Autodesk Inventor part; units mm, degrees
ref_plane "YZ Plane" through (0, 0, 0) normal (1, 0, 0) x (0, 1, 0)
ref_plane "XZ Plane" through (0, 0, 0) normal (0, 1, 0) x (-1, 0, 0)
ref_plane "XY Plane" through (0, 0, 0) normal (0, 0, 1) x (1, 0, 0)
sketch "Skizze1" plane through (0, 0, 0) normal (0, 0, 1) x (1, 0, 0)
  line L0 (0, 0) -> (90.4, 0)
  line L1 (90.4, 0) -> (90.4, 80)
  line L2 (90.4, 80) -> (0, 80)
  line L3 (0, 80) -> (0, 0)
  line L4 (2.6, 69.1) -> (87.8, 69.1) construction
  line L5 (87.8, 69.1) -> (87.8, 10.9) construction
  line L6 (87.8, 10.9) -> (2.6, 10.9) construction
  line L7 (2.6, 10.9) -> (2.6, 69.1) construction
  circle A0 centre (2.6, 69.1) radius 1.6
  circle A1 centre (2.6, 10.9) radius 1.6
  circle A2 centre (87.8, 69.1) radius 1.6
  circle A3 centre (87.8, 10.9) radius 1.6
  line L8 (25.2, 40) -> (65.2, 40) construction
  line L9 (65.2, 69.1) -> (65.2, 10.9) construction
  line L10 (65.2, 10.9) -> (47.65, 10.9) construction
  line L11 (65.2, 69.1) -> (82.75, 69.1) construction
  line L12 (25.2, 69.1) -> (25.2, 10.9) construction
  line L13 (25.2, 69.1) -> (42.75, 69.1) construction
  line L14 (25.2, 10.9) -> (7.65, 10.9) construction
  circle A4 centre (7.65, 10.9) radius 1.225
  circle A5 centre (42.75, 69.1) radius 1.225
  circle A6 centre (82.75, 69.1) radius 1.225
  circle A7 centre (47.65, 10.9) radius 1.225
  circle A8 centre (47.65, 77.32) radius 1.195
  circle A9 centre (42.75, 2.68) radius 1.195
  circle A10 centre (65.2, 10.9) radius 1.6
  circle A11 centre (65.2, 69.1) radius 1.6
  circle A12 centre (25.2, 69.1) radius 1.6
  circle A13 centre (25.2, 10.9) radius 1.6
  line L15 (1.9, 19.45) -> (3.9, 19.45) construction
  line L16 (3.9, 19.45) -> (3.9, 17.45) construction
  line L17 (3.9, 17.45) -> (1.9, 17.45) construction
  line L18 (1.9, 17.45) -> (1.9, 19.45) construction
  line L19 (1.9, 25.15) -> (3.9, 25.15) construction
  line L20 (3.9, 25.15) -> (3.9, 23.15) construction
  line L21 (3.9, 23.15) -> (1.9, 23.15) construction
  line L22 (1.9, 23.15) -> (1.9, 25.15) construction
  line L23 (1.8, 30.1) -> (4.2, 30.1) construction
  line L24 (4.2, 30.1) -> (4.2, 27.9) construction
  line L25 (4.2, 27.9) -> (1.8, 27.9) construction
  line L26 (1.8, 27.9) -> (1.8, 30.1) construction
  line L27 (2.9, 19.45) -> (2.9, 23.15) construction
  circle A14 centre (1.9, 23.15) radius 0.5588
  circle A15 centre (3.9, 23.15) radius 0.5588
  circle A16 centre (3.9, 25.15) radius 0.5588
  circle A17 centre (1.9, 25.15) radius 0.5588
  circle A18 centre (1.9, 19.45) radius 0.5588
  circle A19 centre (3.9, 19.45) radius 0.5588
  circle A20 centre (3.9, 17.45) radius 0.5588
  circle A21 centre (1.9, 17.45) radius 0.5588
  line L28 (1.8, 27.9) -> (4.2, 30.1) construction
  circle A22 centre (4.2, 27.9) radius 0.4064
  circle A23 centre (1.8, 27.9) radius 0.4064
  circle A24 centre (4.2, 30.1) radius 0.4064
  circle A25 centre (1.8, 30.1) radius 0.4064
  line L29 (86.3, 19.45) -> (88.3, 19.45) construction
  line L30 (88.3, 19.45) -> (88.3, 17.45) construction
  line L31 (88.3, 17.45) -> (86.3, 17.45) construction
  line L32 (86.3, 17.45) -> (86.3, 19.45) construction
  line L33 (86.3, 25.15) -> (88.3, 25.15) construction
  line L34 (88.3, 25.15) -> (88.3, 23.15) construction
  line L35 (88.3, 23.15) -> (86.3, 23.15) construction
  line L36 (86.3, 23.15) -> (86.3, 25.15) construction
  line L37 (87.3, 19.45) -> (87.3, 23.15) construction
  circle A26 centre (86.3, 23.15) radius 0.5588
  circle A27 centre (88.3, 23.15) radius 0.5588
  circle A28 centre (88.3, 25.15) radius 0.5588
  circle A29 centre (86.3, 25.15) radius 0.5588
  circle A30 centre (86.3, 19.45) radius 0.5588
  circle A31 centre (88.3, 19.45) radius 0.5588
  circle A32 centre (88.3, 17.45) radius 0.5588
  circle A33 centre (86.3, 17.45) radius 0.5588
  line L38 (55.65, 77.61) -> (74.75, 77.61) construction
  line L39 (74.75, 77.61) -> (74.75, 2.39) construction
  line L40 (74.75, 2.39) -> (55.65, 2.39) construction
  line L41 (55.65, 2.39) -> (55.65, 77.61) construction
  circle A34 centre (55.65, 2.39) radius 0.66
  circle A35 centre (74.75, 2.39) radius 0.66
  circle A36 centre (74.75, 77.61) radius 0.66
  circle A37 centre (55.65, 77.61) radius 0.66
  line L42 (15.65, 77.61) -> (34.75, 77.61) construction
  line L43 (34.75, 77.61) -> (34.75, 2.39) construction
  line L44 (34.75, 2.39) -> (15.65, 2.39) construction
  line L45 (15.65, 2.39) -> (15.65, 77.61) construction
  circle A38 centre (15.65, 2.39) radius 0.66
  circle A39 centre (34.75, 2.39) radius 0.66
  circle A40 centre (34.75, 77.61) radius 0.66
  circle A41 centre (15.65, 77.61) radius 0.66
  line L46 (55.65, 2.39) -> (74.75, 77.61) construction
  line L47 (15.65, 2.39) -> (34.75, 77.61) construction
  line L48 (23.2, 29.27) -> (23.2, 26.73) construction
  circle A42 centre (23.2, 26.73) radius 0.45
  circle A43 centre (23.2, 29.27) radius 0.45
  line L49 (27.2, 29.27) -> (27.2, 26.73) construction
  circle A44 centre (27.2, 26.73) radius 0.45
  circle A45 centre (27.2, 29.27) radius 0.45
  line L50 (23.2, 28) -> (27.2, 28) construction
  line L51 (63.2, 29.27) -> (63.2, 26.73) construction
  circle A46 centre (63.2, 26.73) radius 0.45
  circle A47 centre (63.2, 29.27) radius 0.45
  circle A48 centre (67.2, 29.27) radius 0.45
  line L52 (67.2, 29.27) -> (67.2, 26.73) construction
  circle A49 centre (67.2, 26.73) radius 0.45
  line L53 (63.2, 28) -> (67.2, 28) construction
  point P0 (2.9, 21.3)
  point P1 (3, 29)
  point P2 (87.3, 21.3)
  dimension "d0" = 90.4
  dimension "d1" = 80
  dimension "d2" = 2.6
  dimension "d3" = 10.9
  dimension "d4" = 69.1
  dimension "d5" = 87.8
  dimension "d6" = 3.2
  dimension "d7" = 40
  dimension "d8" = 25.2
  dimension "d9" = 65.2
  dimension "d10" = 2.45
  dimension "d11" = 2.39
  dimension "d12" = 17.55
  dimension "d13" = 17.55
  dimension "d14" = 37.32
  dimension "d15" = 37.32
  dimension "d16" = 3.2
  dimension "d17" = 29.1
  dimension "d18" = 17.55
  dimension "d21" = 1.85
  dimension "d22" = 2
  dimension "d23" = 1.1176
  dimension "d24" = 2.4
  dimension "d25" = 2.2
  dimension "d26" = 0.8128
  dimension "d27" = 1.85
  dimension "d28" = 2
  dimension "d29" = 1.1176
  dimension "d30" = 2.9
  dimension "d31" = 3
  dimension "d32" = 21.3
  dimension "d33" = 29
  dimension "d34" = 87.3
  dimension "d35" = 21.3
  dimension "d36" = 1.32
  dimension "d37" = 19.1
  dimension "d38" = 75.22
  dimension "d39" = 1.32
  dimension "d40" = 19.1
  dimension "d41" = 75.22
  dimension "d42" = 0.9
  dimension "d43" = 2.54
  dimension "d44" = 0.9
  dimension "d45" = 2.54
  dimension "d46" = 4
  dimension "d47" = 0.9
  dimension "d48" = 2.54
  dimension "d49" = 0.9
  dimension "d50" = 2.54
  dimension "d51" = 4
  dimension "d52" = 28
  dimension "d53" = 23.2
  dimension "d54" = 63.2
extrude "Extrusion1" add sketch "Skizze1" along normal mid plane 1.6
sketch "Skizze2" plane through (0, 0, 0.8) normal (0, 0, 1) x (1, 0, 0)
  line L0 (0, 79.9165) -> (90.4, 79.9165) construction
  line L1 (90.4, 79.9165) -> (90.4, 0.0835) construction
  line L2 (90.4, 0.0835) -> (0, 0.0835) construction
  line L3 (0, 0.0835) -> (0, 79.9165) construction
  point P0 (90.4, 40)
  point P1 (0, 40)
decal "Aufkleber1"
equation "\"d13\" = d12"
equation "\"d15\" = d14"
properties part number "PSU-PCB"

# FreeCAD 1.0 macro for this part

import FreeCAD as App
import Part
import Sketcher
from FreeCAD import Vector

doc = App.newDocument("Part")
body = doc.addObject("PartDesign::Body", "Body")

sketch1 = body.newObject("Sketcher::SketchObject", "Sketch")
sketch1.AttachmentSupport = (doc.getObject("XY_Plane"), [""])
sketch1.MapMode = "FlatFace"
sketch1.addGeometry([
    Part.LineSegment(Vector(0, 80, 0), Vector(0, 0, 0)),
    Part.LineSegment(Vector(0, 0, 0), Vector(90.4, 0, 0)),
    Part.LineSegment(Vector(90.4, 0, 0), Vector(90.4, 80, 0)),
    Part.LineSegment(Vector(90.4, 80, 0), Vector(0, 80, 0)),
    Part.Circle(Vector(15.65, 2.39, 0), Vector(0, 0, 1), 0.66),
    Part.Circle(Vector(2.6, 10.9, 0), Vector(0, 0, 1), 1.6),
    Part.Circle(Vector(7.65, 10.9, 0), Vector(0, 0, 1), 1.225),
    Part.Circle(Vector(1.9, 17.45, 0), Vector(0, 0, 1), 0.5588),
    Part.Circle(Vector(3.9, 17.45, 0), Vector(0, 0, 1), 0.5588),
    Part.Circle(Vector(1.9, 19.45, 0), Vector(0, 0, 1), 0.5588),
    Part.Circle(Vector(3.9, 19.45, 0), Vector(0, 0, 1), 0.5588),
    Part.Circle(Vector(34.75, 2.39, 0), Vector(0, 0, 1), 0.66),
    Part.Circle(Vector(42.75, 2.68, 0), Vector(0, 0, 1), 1.195),
    Part.Circle(Vector(25.2, 10.9, 0), Vector(0, 0, 1), 1.6),
    Part.Circle(Vector(1.9, 23.15, 0), Vector(0, 0, 1), 0.5588),
    Part.Circle(Vector(3.9, 23.15, 0), Vector(0, 0, 1), 0.5588),
    Part.Circle(Vector(1.9, 25.15, 0), Vector(0, 0, 1), 0.5588),
    Part.Circle(Vector(3.9, 25.15, 0), Vector(0, 0, 1), 0.5588),
    Part.Circle(Vector(1.8, 27.9, 0), Vector(0, 0, 1), 0.4064),
    Part.Circle(Vector(4.2, 27.9, 0), Vector(0, 0, 1), 0.4064),
    Part.Circle(Vector(1.8, 30.1, 0), Vector(0, 0, 1), 0.4064),
    Part.Circle(Vector(4.2, 30.1, 0), Vector(0, 0, 1), 0.4064),
    Part.Circle(Vector(23.2, 26.73, 0), Vector(0, 0, 1), 0.45),
    Part.Circle(Vector(27.2, 26.73, 0), Vector(0, 0, 1), 0.45),
    Part.Circle(Vector(23.2, 29.27, 0), Vector(0, 0, 1), 0.45),
    Part.Circle(Vector(27.2, 29.27, 0), Vector(0, 0, 1), 0.45),
    Part.Circle(Vector(55.65, 2.39, 0), Vector(0, 0, 1), 0.66),
    Part.Circle(Vector(47.65, 10.9, 0), Vector(0, 0, 1), 1.225),
    Part.Circle(Vector(65.2, 10.9, 0), Vector(0, 0, 1), 1.6),
    Part.Circle(Vector(74.75, 2.39, 0), Vector(0, 0, 1), 0.66),
    Part.Circle(Vector(87.8, 10.9, 0), Vector(0, 0, 1), 1.6),
    Part.Circle(Vector(86.3, 17.45, 0), Vector(0, 0, 1), 0.5588),
    Part.Circle(Vector(88.3, 17.45, 0), Vector(0, 0, 1), 0.5588),
    Part.Circle(Vector(86.3, 19.45, 0), Vector(0, 0, 1), 0.5588),
    Part.Circle(Vector(88.3, 19.45, 0), Vector(0, 0, 1), 0.5588),
    Part.Circle(Vector(63.2, 26.73, 0), Vector(0, 0, 1), 0.45),
    Part.Circle(Vector(67.2, 26.73, 0), Vector(0, 0, 1), 0.45),
    Part.Circle(Vector(63.2, 29.27, 0), Vector(0, 0, 1), 0.45),
    Part.Circle(Vector(67.2, 29.27, 0), Vector(0, 0, 1), 0.45),
    Part.Circle(Vector(86.3, 23.15, 0), Vector(0, 0, 1), 0.5588),
    Part.Circle(Vector(88.3, 23.15, 0), Vector(0, 0, 1), 0.5588),
    Part.Circle(Vector(86.3, 25.15, 0), Vector(0, 0, 1), 0.5588),
    Part.Circle(Vector(88.3, 25.15, 0), Vector(0, 0, 1), 0.5588),
    Part.Circle(Vector(2.6, 69.1, 0), Vector(0, 0, 1), 1.6),
    Part.Circle(Vector(15.65, 77.61, 0), Vector(0, 0, 1), 0.66),
    Part.Circle(Vector(25.2, 69.1, 0), Vector(0, 0, 1), 1.6),
    Part.Circle(Vector(42.75, 69.1, 0), Vector(0, 0, 1), 1.225),
    Part.Circle(Vector(34.75, 77.61, 0), Vector(0, 0, 1), 0.66),
    Part.Circle(Vector(65.2, 69.1, 0), Vector(0, 0, 1), 1.6),
    Part.Circle(Vector(47.65, 77.32, 0), Vector(0, 0, 1), 1.195),
    Part.Circle(Vector(55.65, 77.61, 0), Vector(0, 0, 1), 0.66),
    Part.Circle(Vector(82.75, 69.1, 0), Vector(0, 0, 1), 1.225),
    Part.Circle(Vector(87.8, 69.1, 0), Vector(0, 0, 1), 1.6),
    Part.Circle(Vector(74.75, 77.61, 0), Vector(0, 0, 1), 0.66),
], False)
sketch1.addConstraint([
    Sketcher.Constraint("Coincident", 0, 2, 1, 1),
    Sketcher.Constraint("Coincident", 1, 2, 2, 1),
    Sketcher.Constraint("Coincident", 2, 2, 3, 1),
    Sketcher.Constraint("Coincident", 3, 2, 0, 1),
    Sketcher.Constraint("Vertical", 0),
    Sketcher.Constraint("Horizontal", 1),
    Sketcher.Constraint("Vertical", 2),
    Sketcher.Constraint("Horizontal", 3),
    Sketcher.Constraint("Coincident", 0, 2, -1, 1),
    Sketcher.Constraint("Equal", 7, 8),
    Sketcher.Constraint("Equal", 8, 9),
    Sketcher.Constraint("Equal", 9, 10),
    Sketcher.Constraint("Equal", 4, 11),
    Sketcher.Constraint("Equal", 5, 13),
    Sketcher.Constraint("Equal", 10, 14),
    Sketcher.Constraint("Equal", 14, 15),
    Sketcher.Constraint("Equal", 15, 16),
    Sketcher.Constraint("Equal", 16, 17),
    Sketcher.Constraint("Equal", 18, 19),
    Sketcher.Constraint("Equal", 19, 20),
    Sketcher.Constraint("Equal", 20, 21),
    Sketcher.Constraint("Equal", 22, 23),
    Sketcher.Constraint("Equal", 23, 24),
    Sketcher.Constraint("Equal", 24, 25),
    Sketcher.Constraint("Equal", 11, 26),
    Sketcher.Constraint("Equal", 6, 27),
    Sketcher.Constraint("Equal", 13, 28),
    Sketcher.Constraint("Equal", 26, 29),
    Sketcher.Constraint("Equal", 28, 30),
    Sketcher.Constraint("Equal", 17, 31),
    Sketcher.Constraint("Equal", 31, 32),
    Sketcher.Constraint("Equal", 32, 33),
    Sketcher.Constraint("Equal", 33, 34),
    Sketcher.Constraint("Equal", 25, 35),
    Sketcher.Constraint("Equal", 35, 36),
    Sketcher.Constraint("Equal", 36, 37),
    Sketcher.Constraint("Equal", 37, 38),
    Sketcher.Constraint("Equal", 34, 39),
    Sketcher.Constraint("Equal", 39, 40),
    Sketcher.Constraint("Equal", 40, 41),
    Sketcher.Constraint("Equal", 41, 42),
    Sketcher.Constraint("Equal", 30, 43),
    Sketcher.Constraint("Equal", 29, 44),
    Sketcher.Constraint("Equal", 43, 45),
    Sketcher.Constraint("Equal", 27, 46),
    Sketcher.Constraint("Equal", 44, 47),
    Sketcher.Constraint("Equal", 45, 48),
    Sketcher.Constraint("Equal", 12, 49),
    Sketcher.Constraint("Equal", 47, 50),
    Sketcher.Constraint("Equal", 46, 51),
    Sketcher.Constraint("Equal", 48, 52),
    Sketcher.Constraint("Equal", 50, 53),
    Sketcher.Constraint("Horizontal", 5, 3, 6, 3),
    Sketcher.Constraint("Horizontal", 7, 3, 8, 3),
    Sketcher.Constraint("Horizontal", 9, 3, 10, 3),
    Sketcher.Constraint("Horizontal", 4, 3, 11, 3),
    Sketcher.Constraint("Horizontal", 6, 3, 13, 3),
    Sketcher.Constraint("Horizontal", 14, 3, 15, 3),
    Sketcher.Constraint("Horizontal", 16, 3, 17, 3),
    Sketcher.Constraint("Horizontal", 18, 3, 19, 3),
    Sketcher.Constraint("Horizontal", 20, 3, 21, 3),
    Sketcher.Constraint("Horizontal", 22, 3, 23, 3),
    Sketcher.Constraint("Horizontal", 24, 3, 25, 3),
    Sketcher.Constraint("Horizontal", 11, 3, 26, 3),
    Sketcher.Constraint("Horizontal", 13, 3, 27, 3),
    Sketcher.Constraint("Horizontal", 27, 3, 28, 3),
    Sketcher.Constraint("Horizontal", 26, 3, 29, 3),
    Sketcher.Constraint("Horizontal", 28, 3, 30, 3),
    Sketcher.Constraint("Horizontal", 8, 3, 31, 3),
    Sketcher.Constraint("Horizontal", 31, 3, 32, 3),
    Sketcher.Constraint("Horizontal", 10, 3, 33, 3),
    Sketcher.Constraint("Horizontal", 33, 3, 34, 3),
    Sketcher.Constraint("Horizontal", 23, 3, 35, 3),
    Sketcher.Constraint("Horizontal", 35, 3, 36, 3),
    Sketcher.Constraint("Horizontal", 25, 3, 37, 3),
    Sketcher.Constraint("Horizontal", 37, 3, 38, 3),
    Sketcher.Constraint("Horizontal", 15, 3, 39, 3),
    Sketcher.Constraint("Horizontal", 39, 3, 40, 3),
    Sketcher.Constraint("Horizontal", 17, 3, 41, 3),
    Sketcher.Constraint("Horizontal", 41, 3, 42, 3),
    Sketcher.Constraint("Horizontal", 43, 3, 45, 3),
    Sketcher.Constraint("Horizontal", 45, 3, 46, 3),
    Sketcher.Constraint("Horizontal", 44, 3, 47, 3),
    Sketcher.Constraint("Horizontal", 46, 3, 48, 3),
    Sketcher.Constraint("Horizontal", 47, 3, 50, 3),
    Sketcher.Constraint("Horizontal", 48, 3, 51, 3),
    Sketcher.Constraint("Horizontal", 51, 3, 52, 3),
    Sketcher.Constraint("Horizontal", 50, 3, 53, 3),
    Sketcher.Constraint("Vertical", 7, 3, 9, 3),
    Sketcher.Constraint("Vertical", 8, 3, 10, 3),
    Sketcher.Constraint("Vertical", 9, 3, 14, 3),
    Sketcher.Constraint("Vertical", 10, 3, 15, 3),
    Sketcher.Constraint("Vertical", 14, 3, 16, 3),
    Sketcher.Constraint("Vertical", 15, 3, 17, 3),
    Sketcher.Constraint("Vertical", 18, 3, 20, 3),
    Sketcher.Constraint("Vertical", 19, 3, 21, 3),
    Sketcher.Constraint("Vertical", 22, 3, 24, 3),
    Sketcher.Constraint("Vertical", 23, 3, 25, 3),
    Sketcher.Constraint("Vertical", 31, 3, 33, 3),
    Sketcher.Constraint("Vertical", 32, 3, 34, 3),
    Sketcher.Constraint("Vertical", 35, 3, 37, 3),
    Sketcher.Constraint("Vertical", 36, 3, 38, 3),
    Sketcher.Constraint("Vertical", 33, 3, 39, 3),
    Sketcher.Constraint("Vertical", 34, 3, 40, 3),
    Sketcher.Constraint("Vertical", 39, 3, 41, 3),
    Sketcher.Constraint("Vertical", 40, 3, 42, 3),
    Sketcher.Constraint("Vertical", 5, 3, 43, 3),
    Sketcher.Constraint("Vertical", 4, 3, 44, 3),
    Sketcher.Constraint("Vertical", 13, 3, 45, 3),
    Sketcher.Constraint("Vertical", 12, 3, 46, 3),
    Sketcher.Constraint("Vertical", 11, 3, 47, 3),
    Sketcher.Constraint("Vertical", 28, 3, 48, 3),
    Sketcher.Constraint("Vertical", 27, 3, 49, 3),
    Sketcher.Constraint("Vertical", 26, 3, 50, 3),
    Sketcher.Constraint("Vertical", 30, 3, 52, 3),
    Sketcher.Constraint("Vertical", 29, 3, 53, 3),
    Sketcher.Constraint("Diameter", 5, 3.2),
    Sketcher.Constraint("Diameter", 22, 0.9),
    Sketcher.Constraint("Diameter", 4, 1.32),
    Sketcher.Constraint("Diameter", 6, 2.45),
    Sketcher.Constraint("Diameter", 12, 2.39),
    Sketcher.Constraint("DistanceY", 0, 2, 0, 1, 80.0),
    Sketcher.Constraint("DistanceX", 1, 1, 1, 2, 90.4),
    Sketcher.Constraint("DistanceX", 7, 3, 8, 3, 2.0),
    Sketcher.Constraint("DistanceY", 7, 3, 9, 3, 2.0),
    Sketcher.Constraint("DistanceY", 14, 3, 16, 3, 2.0),
    Sketcher.Constraint("DistanceX", 22, 3, 13, 3, 2.0),
    Sketcher.Constraint("DistanceX", 22, 3, 23, 3, 4.0),
    Sketcher.Constraint("DistanceX", 13, 3, 28, 3, 40.0),
    Sketcher.Constraint("DistanceX", 11, 3, 29, 3, 40.0),
    Sketcher.Constraint("DistanceX", 31, 3, 32, 3, 2.0),
    Sketcher.Constraint("DistanceX", 35, 3, 28, 3, 2.0),
    Sketcher.Constraint("DistanceX", 35, 3, 36, 3, 4.0),
    Sketcher.Constraint("DistanceX", 46, 3, 51, 3, 40.0),
    Sketcher.Constraint("Diameter", 7, 1.1176),
    Sketcher.Constraint("Diameter", 18, 0.8128),
    Sketcher.Constraint("DistanceX", -1, 1, 5, 3, 2.6),
    Sketcher.Constraint("DistanceY", -1, 1, 5, 3, 10.9),
    Sketcher.Constraint("DistanceX", -1, 1, 13, 3, 25.2),
    Sketcher.Constraint("DistanceX", -1, 1, 30, 3, 87.8),
    Sketcher.Constraint("DistanceY", -1, 1, 43, 3, 69.1),
    Sketcher.Constraint("DistanceX", 4, 3, 11, 3, 19.1),
    Sketcher.Constraint("DistanceX", 8, 3, 13, 3, 21.3),
    Sketcher.Constraint("DistanceX", 18, 3, 19, 3, 2.4),
    Sketcher.Constraint("DistanceY", 18, 3, 20, 3, 2.2),
    Sketcher.Constraint("DistanceX", 26, 3, 29, 3, 19.1),
    Sketcher.Constraint("DistanceX", 36, 3, 33, 3, 19.1),
    Sketcher.Constraint("DistanceY", -1, 1, 4, 3, 2.39),
    Sketcher.Constraint("DistanceX", 6, 3, 13, 3, 17.55),
    Sketcher.Constraint("DistanceX", 13, 3, 12, 3, 17.55),
    Sketcher.Constraint("DistanceY", 22, 3, 24, 3, 2.54),
    Sketcher.Constraint("DistanceX", 27, 3, 28, 3, 17.55),
    Sketcher.Constraint("DistanceY", 53, 3, 2, 2, 2.39),
    Sketcher.Constraint("DistanceX", 6, 3, 4, 3, 8.0),
    Sketcher.Constraint("DistanceX", 19, 3, 22, 3, 19.0),
    Sketcher.Constraint("DistanceY", 20, 3, 43, 3, 39.0),
    Sketcher.Constraint("DistanceY", 9, 3, 14, 3, 3.7),
    Sketcher.Constraint("DistanceY", -1, 1, 7, 3, 17.45),
    Sketcher.Constraint("DistanceY", -1, 1, 12, 3, 2.68),
    Sketcher.Constraint("DistanceY", -1, 1, 22, 3, 26.73),
    Sketcher.Constraint("DistanceY", -1, 1, 49, 3, 77.32),
])
pad1 = body.newObject("PartDesign::Pad", "Pad")
pad1.Profile = sketch1
pad1.Length = 1.6
pad1.Midplane = True

doc.recompute()
